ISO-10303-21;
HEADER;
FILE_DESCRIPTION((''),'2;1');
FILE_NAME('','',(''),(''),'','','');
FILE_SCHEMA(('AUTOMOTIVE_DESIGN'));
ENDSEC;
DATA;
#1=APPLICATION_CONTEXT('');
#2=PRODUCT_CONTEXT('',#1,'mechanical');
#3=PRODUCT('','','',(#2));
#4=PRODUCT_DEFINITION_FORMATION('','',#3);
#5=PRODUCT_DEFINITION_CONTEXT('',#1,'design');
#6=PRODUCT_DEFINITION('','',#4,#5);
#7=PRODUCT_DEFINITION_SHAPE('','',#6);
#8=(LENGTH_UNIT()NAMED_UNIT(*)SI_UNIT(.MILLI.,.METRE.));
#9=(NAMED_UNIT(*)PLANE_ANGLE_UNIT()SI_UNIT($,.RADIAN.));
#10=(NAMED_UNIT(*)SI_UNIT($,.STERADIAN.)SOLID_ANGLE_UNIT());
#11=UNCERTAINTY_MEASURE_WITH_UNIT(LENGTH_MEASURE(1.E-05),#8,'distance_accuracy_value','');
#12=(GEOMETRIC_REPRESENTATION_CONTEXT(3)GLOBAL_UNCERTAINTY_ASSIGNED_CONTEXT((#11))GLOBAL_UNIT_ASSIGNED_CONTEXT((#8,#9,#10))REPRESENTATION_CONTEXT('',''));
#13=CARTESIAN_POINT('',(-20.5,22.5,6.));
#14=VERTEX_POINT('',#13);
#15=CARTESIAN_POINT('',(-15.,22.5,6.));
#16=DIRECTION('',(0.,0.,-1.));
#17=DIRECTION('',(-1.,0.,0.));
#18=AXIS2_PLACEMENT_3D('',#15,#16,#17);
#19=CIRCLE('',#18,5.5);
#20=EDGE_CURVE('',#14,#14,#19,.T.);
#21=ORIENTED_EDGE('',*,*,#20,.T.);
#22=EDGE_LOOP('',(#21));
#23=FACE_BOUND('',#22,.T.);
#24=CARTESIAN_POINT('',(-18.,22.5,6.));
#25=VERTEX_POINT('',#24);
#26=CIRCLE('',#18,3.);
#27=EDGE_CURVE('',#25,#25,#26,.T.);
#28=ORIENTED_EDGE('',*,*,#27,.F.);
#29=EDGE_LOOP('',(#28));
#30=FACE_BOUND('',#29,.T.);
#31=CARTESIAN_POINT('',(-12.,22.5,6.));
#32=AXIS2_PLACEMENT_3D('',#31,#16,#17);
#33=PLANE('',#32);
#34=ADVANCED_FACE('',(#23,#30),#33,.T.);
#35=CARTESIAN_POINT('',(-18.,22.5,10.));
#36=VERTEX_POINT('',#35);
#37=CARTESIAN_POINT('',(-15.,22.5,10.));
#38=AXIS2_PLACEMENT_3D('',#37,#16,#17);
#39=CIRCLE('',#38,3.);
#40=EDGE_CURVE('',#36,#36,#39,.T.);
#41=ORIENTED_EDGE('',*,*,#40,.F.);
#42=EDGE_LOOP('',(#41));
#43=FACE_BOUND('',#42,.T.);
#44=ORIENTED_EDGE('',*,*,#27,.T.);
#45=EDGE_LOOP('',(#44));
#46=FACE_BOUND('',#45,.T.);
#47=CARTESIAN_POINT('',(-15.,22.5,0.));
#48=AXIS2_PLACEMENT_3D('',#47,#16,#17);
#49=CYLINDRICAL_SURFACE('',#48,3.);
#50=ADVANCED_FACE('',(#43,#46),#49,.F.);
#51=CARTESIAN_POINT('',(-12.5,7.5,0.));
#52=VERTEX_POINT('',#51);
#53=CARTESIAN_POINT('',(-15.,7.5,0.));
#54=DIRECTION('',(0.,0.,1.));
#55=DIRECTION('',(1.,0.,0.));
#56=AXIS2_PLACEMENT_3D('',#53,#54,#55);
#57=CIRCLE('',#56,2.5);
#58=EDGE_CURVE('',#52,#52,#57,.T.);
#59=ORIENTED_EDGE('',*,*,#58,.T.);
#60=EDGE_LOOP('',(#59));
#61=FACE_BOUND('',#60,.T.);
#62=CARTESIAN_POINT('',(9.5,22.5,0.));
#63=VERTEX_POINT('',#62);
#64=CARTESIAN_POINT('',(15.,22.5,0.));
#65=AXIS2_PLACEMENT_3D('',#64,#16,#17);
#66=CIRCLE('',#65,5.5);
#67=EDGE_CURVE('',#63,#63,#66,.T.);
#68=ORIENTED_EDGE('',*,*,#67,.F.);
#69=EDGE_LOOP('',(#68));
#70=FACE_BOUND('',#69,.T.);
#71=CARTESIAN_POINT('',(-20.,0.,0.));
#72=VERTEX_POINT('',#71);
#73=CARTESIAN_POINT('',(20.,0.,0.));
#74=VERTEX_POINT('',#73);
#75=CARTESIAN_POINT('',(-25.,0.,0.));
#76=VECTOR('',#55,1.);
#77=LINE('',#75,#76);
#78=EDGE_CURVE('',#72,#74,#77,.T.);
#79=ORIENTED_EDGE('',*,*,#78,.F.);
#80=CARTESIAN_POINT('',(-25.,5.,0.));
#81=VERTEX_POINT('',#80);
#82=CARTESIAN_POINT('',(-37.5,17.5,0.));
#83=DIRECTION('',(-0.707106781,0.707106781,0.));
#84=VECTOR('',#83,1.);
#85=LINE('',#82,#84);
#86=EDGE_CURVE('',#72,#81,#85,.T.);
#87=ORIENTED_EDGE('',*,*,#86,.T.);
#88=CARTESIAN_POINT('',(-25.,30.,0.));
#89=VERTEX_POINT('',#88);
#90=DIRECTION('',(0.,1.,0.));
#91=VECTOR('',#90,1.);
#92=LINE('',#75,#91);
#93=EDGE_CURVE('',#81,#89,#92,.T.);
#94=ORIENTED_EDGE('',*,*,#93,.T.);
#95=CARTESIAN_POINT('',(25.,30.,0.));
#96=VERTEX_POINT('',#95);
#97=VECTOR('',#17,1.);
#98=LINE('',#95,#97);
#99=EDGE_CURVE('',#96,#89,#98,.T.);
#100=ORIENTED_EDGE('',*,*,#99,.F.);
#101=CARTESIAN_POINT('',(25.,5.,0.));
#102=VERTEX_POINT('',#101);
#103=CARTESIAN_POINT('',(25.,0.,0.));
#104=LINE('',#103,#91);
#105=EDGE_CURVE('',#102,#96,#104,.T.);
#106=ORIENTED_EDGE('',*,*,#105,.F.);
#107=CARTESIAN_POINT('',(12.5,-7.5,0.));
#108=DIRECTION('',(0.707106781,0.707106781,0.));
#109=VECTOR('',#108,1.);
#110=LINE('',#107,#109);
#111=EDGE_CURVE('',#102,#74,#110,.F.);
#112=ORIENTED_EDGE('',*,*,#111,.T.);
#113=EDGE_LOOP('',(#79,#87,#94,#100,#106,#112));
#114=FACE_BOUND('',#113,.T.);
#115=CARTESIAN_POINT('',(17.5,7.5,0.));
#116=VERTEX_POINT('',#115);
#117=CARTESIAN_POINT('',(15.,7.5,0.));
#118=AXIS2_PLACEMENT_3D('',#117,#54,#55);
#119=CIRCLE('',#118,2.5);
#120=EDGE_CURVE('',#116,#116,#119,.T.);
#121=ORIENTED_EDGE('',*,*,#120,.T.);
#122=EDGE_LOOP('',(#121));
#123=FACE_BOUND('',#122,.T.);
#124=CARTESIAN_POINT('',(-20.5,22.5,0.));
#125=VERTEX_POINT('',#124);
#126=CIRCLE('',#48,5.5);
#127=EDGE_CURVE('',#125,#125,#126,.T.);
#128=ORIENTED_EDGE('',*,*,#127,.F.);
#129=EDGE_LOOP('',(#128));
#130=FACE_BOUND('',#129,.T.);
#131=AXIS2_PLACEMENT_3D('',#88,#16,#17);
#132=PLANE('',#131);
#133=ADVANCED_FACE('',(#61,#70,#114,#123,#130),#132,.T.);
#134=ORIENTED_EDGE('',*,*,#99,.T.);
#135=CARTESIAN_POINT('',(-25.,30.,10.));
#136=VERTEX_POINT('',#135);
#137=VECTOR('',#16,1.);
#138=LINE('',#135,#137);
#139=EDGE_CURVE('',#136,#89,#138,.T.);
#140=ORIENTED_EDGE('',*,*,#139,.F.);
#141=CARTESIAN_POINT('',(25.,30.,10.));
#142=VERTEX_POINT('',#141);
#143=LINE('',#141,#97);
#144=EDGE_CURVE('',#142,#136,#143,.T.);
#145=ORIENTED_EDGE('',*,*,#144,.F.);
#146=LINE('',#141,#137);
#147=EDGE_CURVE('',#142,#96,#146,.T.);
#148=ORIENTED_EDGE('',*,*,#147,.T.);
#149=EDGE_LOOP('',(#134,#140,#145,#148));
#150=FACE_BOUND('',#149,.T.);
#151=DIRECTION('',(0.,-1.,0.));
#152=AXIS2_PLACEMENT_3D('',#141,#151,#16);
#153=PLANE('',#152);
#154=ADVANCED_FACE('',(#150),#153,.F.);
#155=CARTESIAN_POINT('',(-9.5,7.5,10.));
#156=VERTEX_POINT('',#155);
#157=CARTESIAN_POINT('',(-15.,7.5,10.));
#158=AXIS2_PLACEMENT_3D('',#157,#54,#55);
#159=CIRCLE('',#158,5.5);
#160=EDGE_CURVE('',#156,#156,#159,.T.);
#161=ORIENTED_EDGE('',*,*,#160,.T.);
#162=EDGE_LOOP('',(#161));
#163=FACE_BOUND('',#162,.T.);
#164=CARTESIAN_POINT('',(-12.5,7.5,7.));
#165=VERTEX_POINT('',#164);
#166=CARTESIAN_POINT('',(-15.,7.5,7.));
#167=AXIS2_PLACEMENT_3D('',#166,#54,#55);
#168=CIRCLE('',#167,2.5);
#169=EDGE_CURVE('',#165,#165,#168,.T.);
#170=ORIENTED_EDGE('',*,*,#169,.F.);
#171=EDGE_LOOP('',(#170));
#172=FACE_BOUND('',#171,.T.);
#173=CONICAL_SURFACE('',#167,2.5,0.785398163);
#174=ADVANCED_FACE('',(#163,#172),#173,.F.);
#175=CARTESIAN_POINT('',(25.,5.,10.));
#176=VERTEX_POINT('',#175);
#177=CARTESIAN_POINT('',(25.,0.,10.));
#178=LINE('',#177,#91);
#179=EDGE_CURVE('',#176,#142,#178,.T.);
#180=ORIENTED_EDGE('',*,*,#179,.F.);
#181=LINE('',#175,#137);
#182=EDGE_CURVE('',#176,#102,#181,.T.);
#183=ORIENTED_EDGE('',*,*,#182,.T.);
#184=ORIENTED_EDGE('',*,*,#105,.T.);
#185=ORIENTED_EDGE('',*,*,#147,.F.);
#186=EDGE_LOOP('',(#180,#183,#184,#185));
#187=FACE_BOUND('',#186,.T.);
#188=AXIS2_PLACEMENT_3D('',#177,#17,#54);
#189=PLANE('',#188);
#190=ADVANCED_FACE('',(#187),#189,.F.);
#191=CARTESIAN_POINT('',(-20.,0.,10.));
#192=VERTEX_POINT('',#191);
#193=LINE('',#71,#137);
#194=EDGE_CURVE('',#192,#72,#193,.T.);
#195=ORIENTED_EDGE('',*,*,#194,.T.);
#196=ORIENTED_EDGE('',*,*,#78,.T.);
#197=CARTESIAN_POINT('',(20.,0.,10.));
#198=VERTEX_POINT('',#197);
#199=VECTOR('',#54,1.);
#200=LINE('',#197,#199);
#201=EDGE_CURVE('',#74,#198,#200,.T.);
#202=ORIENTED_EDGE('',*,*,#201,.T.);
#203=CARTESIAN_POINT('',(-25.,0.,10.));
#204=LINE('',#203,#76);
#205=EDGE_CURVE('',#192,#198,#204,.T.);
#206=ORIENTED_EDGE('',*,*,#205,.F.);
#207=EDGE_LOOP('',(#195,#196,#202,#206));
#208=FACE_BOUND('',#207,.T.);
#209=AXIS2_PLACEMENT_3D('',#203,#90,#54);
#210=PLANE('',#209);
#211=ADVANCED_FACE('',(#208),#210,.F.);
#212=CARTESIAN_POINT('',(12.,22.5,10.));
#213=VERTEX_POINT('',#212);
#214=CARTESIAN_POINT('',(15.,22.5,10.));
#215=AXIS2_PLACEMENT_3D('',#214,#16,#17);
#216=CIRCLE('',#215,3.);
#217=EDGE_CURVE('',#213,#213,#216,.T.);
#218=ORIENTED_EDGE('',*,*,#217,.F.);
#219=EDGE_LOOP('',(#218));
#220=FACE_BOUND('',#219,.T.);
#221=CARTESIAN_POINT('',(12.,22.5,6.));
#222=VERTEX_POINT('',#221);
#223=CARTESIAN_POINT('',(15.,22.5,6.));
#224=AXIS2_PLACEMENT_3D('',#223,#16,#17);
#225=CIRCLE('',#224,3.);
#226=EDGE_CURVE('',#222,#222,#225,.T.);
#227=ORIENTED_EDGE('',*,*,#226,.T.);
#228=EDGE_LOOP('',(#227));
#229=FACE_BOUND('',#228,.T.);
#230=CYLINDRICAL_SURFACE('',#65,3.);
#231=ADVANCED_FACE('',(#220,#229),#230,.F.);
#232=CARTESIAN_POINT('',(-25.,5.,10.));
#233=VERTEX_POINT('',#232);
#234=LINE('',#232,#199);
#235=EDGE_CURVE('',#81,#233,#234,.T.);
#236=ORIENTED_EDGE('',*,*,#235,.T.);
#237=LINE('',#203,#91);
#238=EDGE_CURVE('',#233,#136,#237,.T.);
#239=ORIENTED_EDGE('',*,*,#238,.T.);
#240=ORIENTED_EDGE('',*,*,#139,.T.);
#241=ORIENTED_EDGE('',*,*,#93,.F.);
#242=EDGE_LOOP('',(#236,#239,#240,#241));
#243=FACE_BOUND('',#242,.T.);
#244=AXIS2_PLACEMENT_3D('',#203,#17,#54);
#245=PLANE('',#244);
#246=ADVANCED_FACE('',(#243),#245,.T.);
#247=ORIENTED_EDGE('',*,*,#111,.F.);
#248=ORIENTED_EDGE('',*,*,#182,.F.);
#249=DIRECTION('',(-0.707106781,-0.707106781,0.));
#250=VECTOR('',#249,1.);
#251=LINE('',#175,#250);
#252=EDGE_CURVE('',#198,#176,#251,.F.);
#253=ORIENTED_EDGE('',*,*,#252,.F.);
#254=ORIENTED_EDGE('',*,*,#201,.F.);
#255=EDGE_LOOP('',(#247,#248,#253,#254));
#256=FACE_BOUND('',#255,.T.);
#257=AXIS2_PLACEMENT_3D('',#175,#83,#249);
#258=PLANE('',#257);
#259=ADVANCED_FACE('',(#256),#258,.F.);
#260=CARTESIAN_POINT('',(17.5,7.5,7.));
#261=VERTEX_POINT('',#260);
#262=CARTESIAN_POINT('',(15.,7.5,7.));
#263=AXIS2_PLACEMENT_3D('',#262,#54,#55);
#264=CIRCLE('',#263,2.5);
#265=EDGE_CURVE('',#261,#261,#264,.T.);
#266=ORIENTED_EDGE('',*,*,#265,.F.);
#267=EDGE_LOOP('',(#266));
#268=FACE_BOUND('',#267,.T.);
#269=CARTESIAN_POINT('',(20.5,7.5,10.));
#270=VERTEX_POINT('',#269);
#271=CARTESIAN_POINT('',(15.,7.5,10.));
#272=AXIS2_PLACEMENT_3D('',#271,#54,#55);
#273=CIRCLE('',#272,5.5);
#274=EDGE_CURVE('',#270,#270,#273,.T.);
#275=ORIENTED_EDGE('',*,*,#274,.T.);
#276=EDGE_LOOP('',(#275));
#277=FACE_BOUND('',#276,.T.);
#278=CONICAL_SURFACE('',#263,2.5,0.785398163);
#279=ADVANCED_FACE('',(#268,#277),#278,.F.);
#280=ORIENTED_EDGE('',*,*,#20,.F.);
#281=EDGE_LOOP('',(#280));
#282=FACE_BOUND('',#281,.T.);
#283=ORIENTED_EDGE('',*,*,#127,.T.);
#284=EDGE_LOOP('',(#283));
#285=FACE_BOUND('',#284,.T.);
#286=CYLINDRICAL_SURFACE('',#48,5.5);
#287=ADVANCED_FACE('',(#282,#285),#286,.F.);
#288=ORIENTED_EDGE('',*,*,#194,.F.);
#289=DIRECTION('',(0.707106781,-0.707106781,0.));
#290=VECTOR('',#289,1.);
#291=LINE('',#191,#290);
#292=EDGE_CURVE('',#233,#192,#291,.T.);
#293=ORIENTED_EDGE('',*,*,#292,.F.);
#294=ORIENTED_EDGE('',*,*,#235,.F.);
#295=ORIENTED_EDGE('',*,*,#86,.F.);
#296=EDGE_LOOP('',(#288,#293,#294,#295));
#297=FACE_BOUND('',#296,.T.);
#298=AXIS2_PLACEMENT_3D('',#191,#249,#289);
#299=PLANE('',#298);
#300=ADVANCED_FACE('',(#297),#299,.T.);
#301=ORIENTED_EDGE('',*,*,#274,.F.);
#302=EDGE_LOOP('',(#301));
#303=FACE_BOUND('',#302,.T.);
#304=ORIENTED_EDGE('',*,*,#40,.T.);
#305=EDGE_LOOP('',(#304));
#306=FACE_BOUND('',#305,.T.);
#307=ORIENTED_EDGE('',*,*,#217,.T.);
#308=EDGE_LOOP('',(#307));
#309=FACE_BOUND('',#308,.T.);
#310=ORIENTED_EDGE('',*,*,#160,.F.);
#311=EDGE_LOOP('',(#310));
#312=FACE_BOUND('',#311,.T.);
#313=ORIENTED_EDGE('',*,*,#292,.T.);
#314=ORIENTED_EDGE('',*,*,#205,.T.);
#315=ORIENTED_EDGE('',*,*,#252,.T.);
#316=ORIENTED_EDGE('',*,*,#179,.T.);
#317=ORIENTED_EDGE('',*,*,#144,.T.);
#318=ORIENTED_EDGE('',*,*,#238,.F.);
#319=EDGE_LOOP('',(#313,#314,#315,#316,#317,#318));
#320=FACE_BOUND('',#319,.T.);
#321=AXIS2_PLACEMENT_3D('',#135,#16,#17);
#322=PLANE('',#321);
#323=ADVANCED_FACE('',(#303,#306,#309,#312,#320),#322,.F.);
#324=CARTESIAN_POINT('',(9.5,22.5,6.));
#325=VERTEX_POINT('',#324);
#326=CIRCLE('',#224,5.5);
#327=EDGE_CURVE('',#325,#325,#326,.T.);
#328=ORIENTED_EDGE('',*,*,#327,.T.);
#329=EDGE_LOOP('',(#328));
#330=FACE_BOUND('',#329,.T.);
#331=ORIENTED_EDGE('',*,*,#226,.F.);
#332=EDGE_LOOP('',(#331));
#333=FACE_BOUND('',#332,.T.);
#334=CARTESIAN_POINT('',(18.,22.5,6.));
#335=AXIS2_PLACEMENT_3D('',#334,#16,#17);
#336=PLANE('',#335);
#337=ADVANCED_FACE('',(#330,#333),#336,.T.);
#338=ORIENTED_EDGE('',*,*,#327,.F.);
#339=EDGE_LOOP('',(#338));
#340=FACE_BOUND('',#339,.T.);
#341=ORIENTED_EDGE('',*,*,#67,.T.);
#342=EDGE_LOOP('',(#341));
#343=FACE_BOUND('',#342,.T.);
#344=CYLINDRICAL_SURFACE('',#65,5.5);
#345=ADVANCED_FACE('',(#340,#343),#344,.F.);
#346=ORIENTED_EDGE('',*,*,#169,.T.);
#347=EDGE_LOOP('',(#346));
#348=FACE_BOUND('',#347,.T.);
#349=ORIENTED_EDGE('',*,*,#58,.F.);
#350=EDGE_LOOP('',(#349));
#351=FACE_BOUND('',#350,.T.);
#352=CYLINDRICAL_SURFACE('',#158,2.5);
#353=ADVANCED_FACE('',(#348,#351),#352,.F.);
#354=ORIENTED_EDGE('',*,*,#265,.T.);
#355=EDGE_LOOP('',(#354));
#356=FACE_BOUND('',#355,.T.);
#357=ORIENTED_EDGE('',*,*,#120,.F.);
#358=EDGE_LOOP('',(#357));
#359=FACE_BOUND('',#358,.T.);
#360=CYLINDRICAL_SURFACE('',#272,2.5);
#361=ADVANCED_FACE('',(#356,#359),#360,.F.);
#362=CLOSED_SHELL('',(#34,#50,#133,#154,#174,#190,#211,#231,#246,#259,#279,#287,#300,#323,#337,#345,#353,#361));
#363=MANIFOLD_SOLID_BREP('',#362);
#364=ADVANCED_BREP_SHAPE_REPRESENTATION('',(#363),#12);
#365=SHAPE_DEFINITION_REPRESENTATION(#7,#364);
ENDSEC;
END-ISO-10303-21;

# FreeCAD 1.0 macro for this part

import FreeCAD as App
import Part
import Sketcher
from FreeCAD import Vector
Q = App.Units.Quantity


def edges_at(feature, points):
    """Names of the edges that pass closest to the given points."""
    edges = feature.Shape.Edges
    near = lambda p: min(range(len(edges)), key=lambda i: edges[i].distToShape(Part.Vertex(*p))[0])
    return sorted({f"Edge{near(p) + 1}" for p in points})


def add_polygon(sketch, points):
    """Adds a closed chain of lines whose ends are joined by coincident constraints."""
    first, n = sketch.GeometryCount, len(points)
    for a, b in zip(points, points[1:] + points[:1]):
        sketch.addGeometry(Part.LineSegment(App.Vector(*a, 0), App.Vector(*b, 0)), False)
    for i in range(n):
        sketch.addConstraint(Sketcher.Constraint("Coincident", first + i, 2, first + (i + 1) % n, 1))

doc = App.newDocument("Part")
body = doc.addObject("PartDesign::Body", "Body")

sketch1 = body.newObject("Sketcher::SketchObject", "Sketch")
sketch1.AttachmentSupport = (doc.getObject("XY_Plane"), [""])
sketch1.MapMode = "FlatFace"
add_polygon(sketch1, [(-25, 30), (-25, 0), (25, 0), (25, 30)])
sketch1.addConstraint([
    Sketcher.Constraint("Vertical", 0),
    Sketcher.Constraint("Horizontal", 1),
    Sketcher.Constraint("Vertical", 2),
    Sketcher.Constraint("Horizontal", 3),
    Sketcher.Constraint("Symmetric", 0, 2, 1, 2, -1, 1),
    Sketcher.Constraint("DistanceX", 1, 1, 1, 2, Q("50 mm")),
    Sketcher.Constraint("DistanceY", 0, 2, 0, 1, Q("30 mm")),
])
pad1 = body.newObject("PartDesign::Pad", "Pad")
pad1.Profile = sketch1
pad1.Length = 10

sketch2 = body.newObject("Sketcher::SketchObject", "Sketch001")
sketch2.AttachmentSupport = (doc.getObject("XY_Plane"), [""])
sketch2.MapMode = "FlatFace"
sketch2.AttachmentOffset = App.Placement(Vector(0, 0, 10), App.Rotation())
sketch2.addGeometry(Part.Circle(Vector(15, 7.5, 0), Vector(0, 0, 1), 2.5), False)
sketch2.addConstraint([
    Sketcher.Constraint("Diameter", 0, Q("5 mm")),
    Sketcher.Constraint("DistanceX", -1, 1, 0, 3, Q("15 mm")),
    Sketcher.Constraint("DistanceY", -1, 1, 0, 3, Q("7.5 mm")),
])
doc.recompute()
hole = body.newObject("PartDesign::Hole", "Hole")
hole.Profile = sketch2
hole.ThreadType = "None"
hole.Diameter = 5
hole.DepthType = "ThroughAll"
hole.HoleCutType = "Countersink"
hole.HoleCutDiameter = 11
hole.HoleCutCountersinkAngle = 90
doc.recompute()

mirrored = body.newObject("PartDesign::Mirrored", "Mirrored")
mirrored.Originals = [hole]
mirrored.MirrorPlane = (doc.getObject("YZ_Plane"), [""])
body.Tip = mirrored

sketch3 = body.newObject("Sketcher::SketchObject", "Sketch002")
sketch3.AttachmentSupport = (doc.getObject("XY_Plane"), [""])
sketch3.MapMode = "FlatFace"
sketch3.addGeometry(Part.Circle(Vector(15, 22.5, 0), Vector(0, 0, 1), 3), False)
sketch3.addConstraint([
    Sketcher.Constraint("Diameter", 0, Q("6 mm")),
    Sketcher.Constraint("DistanceX", -1, 1, 0, 3, Q("15 mm")),
    Sketcher.Constraint("DistanceY", -1, 1, 0, 3, Q("22.5 mm")),
])
doc.recompute()
hole2 = body.newObject("PartDesign::Hole", "Hole001")
hole2.Profile = sketch3
hole2.ThreadType = "None"
hole2.Diameter = 6
hole2.DepthType = "ThroughAll"
hole2.HoleCutType = "Counterbore"
hole2.HoleCutDiameter = 11
hole2.HoleCutDepth = 6
hole2.Reversed = True
doc.recompute()

mirrored2 = body.newObject("PartDesign::Mirrored", "Mirrored001")
mirrored2.Originals = [hole2]
mirrored2.MirrorPlane = (doc.getObject("YZ_Plane"), [""])
body.Tip = mirrored2
doc.recompute()

chamfer = body.newObject("PartDesign::Chamfer", "Chamfer")
chamfer.Base = (mirrored2, edges_at(mirrored2, [(-25, 0, 5), (25, 0, 5)]))
chamfer.Size = 5

doc.recompute()
